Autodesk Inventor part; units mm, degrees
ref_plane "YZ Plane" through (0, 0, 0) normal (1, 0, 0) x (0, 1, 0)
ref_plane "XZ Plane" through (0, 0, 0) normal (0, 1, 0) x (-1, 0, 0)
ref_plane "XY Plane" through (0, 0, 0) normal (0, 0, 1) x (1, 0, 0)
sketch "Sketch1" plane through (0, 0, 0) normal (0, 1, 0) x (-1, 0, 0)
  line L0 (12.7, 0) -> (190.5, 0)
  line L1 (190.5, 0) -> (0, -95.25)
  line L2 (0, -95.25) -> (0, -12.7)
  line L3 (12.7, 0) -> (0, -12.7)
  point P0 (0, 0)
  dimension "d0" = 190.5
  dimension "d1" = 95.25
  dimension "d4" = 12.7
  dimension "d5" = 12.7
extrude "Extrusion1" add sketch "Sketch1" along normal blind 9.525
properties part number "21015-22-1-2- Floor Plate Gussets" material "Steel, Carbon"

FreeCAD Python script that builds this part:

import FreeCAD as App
import Part
import Sketcher
from FreeCAD import Vector
Q = App.Units.Quantity

doc = App.newDocument("Part")
body = doc.addObject("PartDesign::Body", "Body")

# Sketch on XZ plane
sketch1 = body.newObject("Sketcher::SketchObject", "Sketch")
sketch1.AttachmentSupport = (doc.getObject("XZ_Plane"), [""])
sketch1.MapMode = "FlatFace"
sketch1.addGeometry([
    Part.LineSegment(Vector(-190, 0, 0), Vector(-13, 0, 0)),
    Part.LineSegment(Vector(-13, 0, 0), Vector(0, -13, 0)),
    Part.LineSegment(Vector(0, -13, 0), Vector(0, -95, 0)),
    Part.LineSegment(Vector(0, -95, 0), Vector(-190, 0, 0)),
], False)
sketch1.addConstraint([
    Sketcher.Constraint("Coincident", 0, 2, 1, 1),
    Sketcher.Constraint("Coincident", 1, 2, 2, 1),
    Sketcher.Constraint("Coincident", 2, 2, 3, 1),
    Sketcher.Constraint("Coincident", 3, 2, 0, 1),
    Sketcher.Constraint("Horizontal", 0),
    Sketcher.Constraint("Vertical", 2),
    Sketcher.Constraint("PointOnObject", 0, 2, -1),
    Sketcher.Constraint("PointOnObject", 1, 2, -2),
    Sketcher.Constraint("DistanceX", 0, 2, -1, 1, Q("0.5 in")),
    Sketcher.Constraint("DistanceY", 1, 2, -1, 1, Q("0.5 in")),
    Sketcher.Constraint("DistanceX", 3, 2, -1, 1, Q("7.5 in")),
    Sketcher.Constraint("DistanceY", 2, 2, -1, 1, Q("3.75 in")),
])
pad1 = body.newObject("PartDesign::Pad", "Pad")
pad1.Profile = sketch1
pad1.Length = Q("0.375 in")
pad1.Reversed = True

doc.recompute()
